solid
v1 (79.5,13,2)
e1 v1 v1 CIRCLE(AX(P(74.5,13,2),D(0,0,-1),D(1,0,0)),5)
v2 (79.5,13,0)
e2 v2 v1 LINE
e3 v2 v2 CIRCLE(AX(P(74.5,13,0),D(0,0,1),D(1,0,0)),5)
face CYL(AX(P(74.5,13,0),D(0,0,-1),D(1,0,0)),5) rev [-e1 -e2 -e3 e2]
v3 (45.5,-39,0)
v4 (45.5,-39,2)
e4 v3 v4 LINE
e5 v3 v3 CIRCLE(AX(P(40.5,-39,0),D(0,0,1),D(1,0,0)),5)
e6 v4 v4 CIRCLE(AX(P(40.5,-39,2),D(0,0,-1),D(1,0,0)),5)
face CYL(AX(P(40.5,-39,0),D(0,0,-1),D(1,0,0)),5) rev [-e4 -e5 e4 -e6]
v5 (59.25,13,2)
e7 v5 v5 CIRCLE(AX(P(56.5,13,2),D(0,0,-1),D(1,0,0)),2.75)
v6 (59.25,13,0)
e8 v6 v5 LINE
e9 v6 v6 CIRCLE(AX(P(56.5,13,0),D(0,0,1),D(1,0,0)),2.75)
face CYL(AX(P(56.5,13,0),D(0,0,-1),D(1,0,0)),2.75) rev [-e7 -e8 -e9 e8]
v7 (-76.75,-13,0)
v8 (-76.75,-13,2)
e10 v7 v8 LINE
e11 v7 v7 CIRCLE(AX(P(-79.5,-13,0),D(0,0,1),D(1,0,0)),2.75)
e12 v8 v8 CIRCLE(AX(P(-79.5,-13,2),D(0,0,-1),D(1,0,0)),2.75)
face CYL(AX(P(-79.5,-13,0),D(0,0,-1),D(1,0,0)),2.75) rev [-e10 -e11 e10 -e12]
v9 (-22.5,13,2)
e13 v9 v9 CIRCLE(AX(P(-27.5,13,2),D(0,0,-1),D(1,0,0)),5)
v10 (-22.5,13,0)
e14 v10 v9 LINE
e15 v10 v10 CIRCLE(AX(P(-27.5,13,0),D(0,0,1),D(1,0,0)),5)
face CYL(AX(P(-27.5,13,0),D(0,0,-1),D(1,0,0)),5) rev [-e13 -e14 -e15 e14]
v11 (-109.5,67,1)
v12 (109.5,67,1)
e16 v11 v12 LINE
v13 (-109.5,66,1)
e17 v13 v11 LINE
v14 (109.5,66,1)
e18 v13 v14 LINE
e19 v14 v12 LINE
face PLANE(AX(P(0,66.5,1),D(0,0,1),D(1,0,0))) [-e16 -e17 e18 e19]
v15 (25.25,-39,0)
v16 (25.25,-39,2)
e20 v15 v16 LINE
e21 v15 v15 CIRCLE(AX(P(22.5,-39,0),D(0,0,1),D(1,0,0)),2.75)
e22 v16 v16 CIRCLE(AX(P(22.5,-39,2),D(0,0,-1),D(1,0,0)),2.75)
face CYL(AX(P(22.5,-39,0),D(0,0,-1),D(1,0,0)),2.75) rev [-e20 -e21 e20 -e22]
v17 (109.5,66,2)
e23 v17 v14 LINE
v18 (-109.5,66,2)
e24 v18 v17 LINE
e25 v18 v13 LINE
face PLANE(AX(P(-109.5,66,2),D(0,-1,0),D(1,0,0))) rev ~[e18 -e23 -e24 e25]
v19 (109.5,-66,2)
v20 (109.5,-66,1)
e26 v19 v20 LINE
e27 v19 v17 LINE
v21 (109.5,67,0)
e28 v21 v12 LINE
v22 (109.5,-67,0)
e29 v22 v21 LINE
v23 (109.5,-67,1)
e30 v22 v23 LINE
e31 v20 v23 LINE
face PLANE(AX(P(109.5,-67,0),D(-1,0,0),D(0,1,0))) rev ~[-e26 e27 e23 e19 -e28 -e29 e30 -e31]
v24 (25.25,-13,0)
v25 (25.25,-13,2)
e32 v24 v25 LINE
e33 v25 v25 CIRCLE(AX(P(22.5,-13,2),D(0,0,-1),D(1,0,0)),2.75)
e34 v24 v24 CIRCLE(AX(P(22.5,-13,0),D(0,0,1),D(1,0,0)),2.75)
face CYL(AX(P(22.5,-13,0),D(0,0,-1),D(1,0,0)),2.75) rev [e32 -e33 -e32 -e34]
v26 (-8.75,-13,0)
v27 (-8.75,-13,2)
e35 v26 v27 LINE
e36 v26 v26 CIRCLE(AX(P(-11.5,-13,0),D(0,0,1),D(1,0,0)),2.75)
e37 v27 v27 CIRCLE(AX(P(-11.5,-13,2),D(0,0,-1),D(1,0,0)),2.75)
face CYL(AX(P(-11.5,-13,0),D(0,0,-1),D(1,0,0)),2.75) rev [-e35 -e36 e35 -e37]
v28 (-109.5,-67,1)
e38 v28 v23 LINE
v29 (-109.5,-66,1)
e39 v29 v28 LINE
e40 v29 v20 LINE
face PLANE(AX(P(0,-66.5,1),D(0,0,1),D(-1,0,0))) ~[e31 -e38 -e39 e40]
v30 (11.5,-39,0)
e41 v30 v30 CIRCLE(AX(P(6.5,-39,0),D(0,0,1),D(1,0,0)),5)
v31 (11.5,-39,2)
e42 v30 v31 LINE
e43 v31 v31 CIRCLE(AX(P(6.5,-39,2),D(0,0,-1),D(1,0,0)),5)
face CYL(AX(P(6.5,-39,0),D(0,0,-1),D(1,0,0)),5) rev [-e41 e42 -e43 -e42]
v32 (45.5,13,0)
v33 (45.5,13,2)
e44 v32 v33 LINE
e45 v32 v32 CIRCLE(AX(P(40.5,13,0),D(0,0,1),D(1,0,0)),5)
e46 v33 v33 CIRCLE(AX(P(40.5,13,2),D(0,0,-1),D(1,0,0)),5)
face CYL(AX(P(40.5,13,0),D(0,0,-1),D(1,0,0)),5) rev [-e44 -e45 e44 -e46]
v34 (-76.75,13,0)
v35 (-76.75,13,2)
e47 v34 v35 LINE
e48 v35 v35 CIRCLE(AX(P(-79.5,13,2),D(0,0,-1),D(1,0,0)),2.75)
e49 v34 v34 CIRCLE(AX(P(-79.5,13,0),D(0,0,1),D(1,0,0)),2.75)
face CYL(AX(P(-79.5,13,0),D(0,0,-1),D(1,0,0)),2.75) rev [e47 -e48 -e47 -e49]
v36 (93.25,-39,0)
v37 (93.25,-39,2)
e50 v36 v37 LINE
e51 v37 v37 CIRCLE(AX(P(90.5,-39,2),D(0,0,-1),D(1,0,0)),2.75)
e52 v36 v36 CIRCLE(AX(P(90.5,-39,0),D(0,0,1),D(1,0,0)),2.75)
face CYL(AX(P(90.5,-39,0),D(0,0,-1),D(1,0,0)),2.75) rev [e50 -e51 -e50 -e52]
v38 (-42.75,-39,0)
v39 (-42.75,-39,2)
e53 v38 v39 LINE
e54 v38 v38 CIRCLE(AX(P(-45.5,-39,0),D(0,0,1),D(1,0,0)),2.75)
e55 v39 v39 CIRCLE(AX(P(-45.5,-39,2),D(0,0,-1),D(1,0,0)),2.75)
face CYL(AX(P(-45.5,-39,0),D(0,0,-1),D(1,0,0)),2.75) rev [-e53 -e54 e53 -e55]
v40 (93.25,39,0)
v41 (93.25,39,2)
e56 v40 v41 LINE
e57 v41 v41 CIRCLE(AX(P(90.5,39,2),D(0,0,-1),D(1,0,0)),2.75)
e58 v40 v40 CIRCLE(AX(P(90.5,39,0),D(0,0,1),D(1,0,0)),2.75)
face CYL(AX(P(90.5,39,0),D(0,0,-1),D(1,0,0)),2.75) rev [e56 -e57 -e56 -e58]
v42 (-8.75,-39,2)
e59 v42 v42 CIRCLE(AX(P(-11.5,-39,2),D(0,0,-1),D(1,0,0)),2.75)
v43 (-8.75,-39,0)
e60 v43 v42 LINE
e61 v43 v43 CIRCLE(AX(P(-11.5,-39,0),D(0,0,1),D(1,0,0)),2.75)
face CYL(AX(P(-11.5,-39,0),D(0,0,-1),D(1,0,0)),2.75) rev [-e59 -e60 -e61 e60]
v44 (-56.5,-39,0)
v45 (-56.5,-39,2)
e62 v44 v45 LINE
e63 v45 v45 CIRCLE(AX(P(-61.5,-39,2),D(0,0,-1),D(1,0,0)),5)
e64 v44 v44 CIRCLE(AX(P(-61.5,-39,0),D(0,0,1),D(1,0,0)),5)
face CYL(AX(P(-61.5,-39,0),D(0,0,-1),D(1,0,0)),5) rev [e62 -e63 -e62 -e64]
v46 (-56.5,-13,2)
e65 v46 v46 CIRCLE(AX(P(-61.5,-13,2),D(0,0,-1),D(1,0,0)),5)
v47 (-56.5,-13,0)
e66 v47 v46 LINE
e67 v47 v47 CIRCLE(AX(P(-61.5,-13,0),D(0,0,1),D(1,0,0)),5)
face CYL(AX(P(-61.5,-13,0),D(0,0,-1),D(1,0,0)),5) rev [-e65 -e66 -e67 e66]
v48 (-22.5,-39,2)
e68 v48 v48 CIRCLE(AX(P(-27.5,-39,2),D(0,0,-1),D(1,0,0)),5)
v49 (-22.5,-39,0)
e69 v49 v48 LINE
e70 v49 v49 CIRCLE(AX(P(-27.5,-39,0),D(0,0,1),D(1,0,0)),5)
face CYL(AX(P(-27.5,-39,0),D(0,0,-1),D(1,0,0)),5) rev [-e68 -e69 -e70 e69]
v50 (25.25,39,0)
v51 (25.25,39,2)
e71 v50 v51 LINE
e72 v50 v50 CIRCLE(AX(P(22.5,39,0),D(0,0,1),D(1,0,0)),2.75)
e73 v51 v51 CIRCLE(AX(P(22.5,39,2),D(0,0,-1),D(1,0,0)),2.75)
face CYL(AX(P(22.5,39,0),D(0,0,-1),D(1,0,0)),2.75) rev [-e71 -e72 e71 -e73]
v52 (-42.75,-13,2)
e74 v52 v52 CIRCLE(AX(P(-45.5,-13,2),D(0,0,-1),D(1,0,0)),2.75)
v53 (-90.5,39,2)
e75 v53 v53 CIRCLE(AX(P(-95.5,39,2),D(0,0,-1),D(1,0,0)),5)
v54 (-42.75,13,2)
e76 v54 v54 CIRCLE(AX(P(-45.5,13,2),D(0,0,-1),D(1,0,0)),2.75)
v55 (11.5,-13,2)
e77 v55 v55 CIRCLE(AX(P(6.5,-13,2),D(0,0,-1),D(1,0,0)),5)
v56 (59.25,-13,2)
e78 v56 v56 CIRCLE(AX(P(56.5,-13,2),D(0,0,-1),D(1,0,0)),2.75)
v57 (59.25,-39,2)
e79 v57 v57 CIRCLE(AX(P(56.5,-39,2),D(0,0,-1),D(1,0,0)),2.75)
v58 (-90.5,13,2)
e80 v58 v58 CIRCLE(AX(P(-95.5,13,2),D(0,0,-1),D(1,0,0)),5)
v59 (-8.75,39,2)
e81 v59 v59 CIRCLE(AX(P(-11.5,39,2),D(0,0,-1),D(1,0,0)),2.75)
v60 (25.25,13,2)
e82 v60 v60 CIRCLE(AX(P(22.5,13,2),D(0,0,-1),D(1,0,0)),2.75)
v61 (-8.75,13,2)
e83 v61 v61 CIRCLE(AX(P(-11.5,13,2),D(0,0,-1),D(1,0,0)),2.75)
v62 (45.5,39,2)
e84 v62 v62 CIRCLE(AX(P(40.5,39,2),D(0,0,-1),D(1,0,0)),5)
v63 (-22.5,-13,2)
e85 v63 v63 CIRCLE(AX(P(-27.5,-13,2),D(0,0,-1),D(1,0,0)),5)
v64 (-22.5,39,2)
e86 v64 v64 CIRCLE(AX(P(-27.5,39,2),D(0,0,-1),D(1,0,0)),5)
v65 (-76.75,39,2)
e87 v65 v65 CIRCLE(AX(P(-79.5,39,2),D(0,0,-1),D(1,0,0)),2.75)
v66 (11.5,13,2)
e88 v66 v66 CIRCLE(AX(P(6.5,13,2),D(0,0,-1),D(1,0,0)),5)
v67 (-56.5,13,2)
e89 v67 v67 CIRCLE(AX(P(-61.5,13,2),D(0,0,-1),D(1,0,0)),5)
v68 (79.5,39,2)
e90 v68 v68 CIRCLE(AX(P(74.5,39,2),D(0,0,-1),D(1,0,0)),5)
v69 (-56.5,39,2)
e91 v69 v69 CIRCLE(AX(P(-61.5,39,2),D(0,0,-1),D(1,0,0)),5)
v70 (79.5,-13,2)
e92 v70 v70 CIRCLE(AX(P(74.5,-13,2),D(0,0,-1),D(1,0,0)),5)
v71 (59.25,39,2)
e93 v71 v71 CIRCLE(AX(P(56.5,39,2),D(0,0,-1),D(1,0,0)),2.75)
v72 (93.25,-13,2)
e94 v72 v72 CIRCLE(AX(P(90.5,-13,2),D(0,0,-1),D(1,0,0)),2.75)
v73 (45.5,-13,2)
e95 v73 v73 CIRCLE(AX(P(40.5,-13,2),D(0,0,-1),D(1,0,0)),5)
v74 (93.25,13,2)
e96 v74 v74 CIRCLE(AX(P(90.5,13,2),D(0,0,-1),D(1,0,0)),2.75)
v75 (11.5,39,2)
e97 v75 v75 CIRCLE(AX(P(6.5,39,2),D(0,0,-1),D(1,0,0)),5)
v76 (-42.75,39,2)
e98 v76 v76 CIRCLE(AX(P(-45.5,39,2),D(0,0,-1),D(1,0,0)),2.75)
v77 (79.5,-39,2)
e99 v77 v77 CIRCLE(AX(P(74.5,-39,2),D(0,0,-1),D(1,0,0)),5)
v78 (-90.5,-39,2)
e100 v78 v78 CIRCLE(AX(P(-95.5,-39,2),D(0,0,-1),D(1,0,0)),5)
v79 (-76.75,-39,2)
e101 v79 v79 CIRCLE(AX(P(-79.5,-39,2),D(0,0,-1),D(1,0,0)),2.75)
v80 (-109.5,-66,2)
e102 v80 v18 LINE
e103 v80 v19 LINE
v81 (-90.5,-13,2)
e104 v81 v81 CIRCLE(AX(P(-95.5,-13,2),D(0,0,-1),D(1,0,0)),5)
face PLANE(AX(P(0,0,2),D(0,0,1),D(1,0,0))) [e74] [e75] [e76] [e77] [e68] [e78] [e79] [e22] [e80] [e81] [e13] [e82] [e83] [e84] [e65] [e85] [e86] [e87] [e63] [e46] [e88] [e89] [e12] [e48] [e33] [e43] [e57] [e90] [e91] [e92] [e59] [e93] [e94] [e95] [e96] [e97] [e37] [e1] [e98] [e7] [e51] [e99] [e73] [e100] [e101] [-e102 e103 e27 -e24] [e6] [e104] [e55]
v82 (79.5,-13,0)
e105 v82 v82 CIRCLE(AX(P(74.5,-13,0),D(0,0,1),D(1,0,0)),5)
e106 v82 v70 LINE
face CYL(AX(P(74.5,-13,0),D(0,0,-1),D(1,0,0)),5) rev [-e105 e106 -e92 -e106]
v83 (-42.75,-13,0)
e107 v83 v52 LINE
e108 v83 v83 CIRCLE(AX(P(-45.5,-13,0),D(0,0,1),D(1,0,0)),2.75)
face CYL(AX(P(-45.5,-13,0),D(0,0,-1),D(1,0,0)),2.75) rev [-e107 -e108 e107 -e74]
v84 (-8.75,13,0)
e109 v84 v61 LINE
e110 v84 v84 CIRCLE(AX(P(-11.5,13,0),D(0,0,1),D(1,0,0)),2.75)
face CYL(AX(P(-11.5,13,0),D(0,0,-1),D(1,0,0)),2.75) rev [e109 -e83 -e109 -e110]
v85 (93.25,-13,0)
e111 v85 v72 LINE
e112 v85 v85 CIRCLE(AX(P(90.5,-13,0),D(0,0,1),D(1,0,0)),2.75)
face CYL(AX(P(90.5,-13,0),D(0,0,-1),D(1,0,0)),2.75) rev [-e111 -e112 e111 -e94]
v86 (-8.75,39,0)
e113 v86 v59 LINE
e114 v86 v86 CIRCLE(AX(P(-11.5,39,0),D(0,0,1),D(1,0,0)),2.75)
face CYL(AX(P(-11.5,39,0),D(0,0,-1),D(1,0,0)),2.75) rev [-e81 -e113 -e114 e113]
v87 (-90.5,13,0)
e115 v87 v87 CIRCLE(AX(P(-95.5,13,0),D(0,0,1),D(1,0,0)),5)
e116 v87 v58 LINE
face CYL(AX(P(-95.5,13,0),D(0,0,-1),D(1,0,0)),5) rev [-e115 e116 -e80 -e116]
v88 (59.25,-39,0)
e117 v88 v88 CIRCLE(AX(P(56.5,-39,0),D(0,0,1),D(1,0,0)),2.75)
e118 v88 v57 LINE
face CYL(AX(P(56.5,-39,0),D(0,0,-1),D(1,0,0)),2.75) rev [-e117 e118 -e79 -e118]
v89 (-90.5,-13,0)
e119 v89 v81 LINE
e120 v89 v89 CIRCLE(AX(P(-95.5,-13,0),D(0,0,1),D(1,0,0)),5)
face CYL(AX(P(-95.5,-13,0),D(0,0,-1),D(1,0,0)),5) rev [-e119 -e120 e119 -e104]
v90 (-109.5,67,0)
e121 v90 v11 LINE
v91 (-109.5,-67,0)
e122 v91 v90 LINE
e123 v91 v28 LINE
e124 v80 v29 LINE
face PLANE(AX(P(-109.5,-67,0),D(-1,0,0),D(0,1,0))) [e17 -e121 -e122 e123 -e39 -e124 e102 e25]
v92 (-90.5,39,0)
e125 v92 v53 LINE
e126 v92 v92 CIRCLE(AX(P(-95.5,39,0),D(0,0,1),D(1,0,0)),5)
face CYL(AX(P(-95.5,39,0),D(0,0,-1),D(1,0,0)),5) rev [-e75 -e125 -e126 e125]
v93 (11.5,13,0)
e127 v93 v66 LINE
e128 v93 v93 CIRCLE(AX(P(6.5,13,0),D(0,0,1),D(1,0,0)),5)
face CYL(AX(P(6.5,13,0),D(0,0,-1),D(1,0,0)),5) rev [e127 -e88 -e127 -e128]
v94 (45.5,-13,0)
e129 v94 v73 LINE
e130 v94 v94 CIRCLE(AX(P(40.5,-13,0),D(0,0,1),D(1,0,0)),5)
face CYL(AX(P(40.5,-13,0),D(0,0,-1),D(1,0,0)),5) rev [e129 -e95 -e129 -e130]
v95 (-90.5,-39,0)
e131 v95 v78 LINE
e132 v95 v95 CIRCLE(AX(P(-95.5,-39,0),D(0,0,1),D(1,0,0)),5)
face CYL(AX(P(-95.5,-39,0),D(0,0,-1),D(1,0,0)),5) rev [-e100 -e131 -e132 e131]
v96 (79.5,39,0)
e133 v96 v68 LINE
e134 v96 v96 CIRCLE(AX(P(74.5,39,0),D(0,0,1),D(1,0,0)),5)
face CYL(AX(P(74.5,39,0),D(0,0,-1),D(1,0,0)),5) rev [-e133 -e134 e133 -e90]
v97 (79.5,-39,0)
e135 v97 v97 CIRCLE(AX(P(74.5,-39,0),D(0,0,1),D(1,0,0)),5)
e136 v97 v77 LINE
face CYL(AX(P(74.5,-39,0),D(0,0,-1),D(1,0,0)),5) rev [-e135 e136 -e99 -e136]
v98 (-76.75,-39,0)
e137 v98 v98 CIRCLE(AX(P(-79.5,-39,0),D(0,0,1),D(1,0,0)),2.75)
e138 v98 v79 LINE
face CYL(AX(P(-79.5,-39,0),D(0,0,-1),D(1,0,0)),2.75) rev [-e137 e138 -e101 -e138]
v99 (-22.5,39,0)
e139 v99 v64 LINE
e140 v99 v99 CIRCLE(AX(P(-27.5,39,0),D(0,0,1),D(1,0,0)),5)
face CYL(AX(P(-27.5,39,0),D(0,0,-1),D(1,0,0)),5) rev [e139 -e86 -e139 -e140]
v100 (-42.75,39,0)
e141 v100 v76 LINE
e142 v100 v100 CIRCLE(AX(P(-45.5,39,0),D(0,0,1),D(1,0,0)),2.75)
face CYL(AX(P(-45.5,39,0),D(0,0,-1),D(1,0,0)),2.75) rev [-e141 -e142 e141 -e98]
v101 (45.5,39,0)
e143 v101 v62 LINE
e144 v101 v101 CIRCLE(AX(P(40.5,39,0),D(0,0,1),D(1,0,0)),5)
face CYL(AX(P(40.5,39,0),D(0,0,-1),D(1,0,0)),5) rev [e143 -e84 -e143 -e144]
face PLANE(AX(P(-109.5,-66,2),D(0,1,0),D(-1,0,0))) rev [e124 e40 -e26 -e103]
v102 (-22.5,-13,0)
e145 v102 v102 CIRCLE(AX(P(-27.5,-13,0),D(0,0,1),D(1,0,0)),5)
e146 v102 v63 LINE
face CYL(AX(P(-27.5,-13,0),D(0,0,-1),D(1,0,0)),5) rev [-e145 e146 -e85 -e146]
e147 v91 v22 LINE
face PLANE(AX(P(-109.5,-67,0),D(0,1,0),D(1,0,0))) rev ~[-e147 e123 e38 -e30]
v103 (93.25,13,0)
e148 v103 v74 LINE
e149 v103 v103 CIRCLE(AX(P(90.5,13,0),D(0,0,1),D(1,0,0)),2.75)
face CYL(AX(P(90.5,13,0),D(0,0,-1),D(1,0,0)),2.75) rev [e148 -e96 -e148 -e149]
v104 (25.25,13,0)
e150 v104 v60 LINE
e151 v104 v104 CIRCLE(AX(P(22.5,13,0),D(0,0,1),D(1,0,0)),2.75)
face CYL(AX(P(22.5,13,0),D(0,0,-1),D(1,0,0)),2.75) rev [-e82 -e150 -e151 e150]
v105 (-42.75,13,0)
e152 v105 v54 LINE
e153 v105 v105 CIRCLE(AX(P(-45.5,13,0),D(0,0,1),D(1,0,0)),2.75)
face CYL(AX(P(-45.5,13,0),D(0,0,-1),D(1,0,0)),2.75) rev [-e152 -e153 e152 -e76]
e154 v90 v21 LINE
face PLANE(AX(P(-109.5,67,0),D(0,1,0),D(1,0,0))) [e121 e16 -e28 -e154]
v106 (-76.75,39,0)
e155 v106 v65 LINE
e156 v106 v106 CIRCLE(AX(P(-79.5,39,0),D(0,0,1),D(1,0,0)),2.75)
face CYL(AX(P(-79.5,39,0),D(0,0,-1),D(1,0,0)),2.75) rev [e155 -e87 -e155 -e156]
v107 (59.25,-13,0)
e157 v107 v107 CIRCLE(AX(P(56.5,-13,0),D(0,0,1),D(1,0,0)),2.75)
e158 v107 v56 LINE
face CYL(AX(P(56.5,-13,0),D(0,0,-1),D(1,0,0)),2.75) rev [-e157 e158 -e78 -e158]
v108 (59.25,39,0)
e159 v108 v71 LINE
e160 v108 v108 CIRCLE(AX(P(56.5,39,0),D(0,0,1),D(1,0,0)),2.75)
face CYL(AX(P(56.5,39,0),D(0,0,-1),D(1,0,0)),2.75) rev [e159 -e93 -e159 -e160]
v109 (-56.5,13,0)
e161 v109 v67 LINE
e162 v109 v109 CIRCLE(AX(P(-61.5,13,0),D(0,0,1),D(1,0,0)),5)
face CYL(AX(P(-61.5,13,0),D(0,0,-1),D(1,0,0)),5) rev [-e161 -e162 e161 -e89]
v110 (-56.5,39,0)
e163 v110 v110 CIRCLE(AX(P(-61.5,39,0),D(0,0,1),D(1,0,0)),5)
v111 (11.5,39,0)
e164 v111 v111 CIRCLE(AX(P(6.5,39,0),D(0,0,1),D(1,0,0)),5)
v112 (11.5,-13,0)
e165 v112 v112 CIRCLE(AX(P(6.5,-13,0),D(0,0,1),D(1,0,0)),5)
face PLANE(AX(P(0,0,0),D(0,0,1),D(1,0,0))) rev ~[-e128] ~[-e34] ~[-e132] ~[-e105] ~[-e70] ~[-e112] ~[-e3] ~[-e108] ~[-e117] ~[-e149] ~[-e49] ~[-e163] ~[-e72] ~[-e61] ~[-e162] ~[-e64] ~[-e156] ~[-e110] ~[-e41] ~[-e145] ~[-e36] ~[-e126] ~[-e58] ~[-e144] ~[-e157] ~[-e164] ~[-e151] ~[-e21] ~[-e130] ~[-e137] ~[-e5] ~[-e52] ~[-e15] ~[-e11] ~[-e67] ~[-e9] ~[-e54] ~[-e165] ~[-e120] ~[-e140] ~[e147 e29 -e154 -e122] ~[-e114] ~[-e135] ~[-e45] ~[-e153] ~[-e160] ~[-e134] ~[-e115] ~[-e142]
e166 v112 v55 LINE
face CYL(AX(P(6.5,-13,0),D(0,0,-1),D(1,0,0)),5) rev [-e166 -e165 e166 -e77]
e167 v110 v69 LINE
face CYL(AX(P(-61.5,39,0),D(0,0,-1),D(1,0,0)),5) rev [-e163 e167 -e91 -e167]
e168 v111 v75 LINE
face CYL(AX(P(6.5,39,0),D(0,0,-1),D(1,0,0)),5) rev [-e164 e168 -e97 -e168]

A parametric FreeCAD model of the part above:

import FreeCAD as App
import Part
import Sketcher

doc = App.newDocument("Part")
body = doc.addObject("PartDesign::Body", "Body")

# Sketch on XY plane
sketch1 = body.newObject("Sketcher::SketchObject", "Sketch")
sketch1.AttachmentSupport = (doc.getObject("XY_Plane"), [""])
sketch1.MapMode = "FlatFace"
sketch1.addGeometry([
    Part.LineSegment(App.Vector(-109.5, 67, 0), App.Vector(-109.5, -67, 0)),
    Part.LineSegment(App.Vector(-109.5, -67, 0), App.Vector(109.5, -67, 0)),
    Part.LineSegment(App.Vector(109.5, -67, 0), App.Vector(109.5, 67, 0)),
    Part.LineSegment(App.Vector(109.5, 67, 0), App.Vector(-109.5, 67, 0)),
], False)
sketch1.addConstraint([
    Sketcher.Constraint("Coincident", 0, 2, 1, 1),
    Sketcher.Constraint("Coincident", 1, 2, 2, 1),
    Sketcher.Constraint("Coincident", 2, 2, 3, 1),
    Sketcher.Constraint("Coincident", 3, 2, 0, 1),
    Sketcher.Constraint("Vertical", 0),
    Sketcher.Constraint("Horizontal", 1),
    Sketcher.Constraint("Vertical", 2),
    Sketcher.Constraint("Horizontal", 3),
    Sketcher.Constraint("Symmetric", 0, 2, 2, 2, -1, 1),
    Sketcher.Constraint("DistanceX", 1, 1, 1, 2, 219.0),
    Sketcher.Constraint("DistanceY", 0, 2, 0, 1, 134.0),
])
pad1 = body.newObject("PartDesign::Pad", "Pad")
pad1.Profile = sketch1
pad1.Length = 2

# Sketch on XY plane
sketch2 = body.newObject("Sketcher::SketchObject", "Sketch001")
sketch2.AttachmentSupport = (doc.getObject("XY_Plane"), [""])
sketch2.MapMode = "FlatFace"
sketch2.addGeometry([
    Part.Circle(App.Vector(-95.5, 39, 0), App.Vector(0, 0, 1), 5),  # 0
    Part.Circle(App.Vector(-95.5, 13, 0), App.Vector(0, 0, 1), 5),  # 1
    Part.Circle(App.Vector(-95.5, -13, 0), App.Vector(0, 0, 1), 5),  # 2
    Part.Circle(App.Vector(-95.5, -39, 0), App.Vector(0, 0, 1), 5),  # 3
    Part.Circle(App.Vector(-79.5, 39, 0), App.Vector(0, 0, 1), 2.75),  # 4
    Part.Circle(App.Vector(-79.5, 13, 0), App.Vector(0, 0, 1), 2.75),  # 5
    Part.Circle(App.Vector(-79.5, -13, 0), App.Vector(0, 0, 1), 2.75),  # 6
    Part.Circle(App.Vector(-79.5, -39, 0), App.Vector(0, 0, 1), 2.75),  # 7
], False)
sketch2.addConstraint([
    Sketcher.Constraint("Equal", 0, 1),
    Sketcher.Constraint("Equal", 1, 2),
    Sketcher.Constraint("Equal", 2, 3),
    Sketcher.Constraint("Equal", 4, 5),
    Sketcher.Constraint("Equal", 5, 6),
    Sketcher.Constraint("Equal", 6, 7),
    Sketcher.Constraint("Symmetric", 1, 3, 2, 3, -1),
    Sketcher.Constraint("Symmetric", 0, 3, 3, 3, -1),
    Sketcher.Constraint("Symmetric", 5, 3, 6, 3, -1),
    Sketcher.Constraint("Symmetric", 4, 3, 7, 3, -1),
    Sketcher.Constraint("Horizontal", 0, 3, 4, 3),
    Sketcher.Constraint("Horizontal", 1, 3, 5, 3),
    Sketcher.Constraint("Vertical", 0, 3, 1, 3),
    Sketcher.Constraint("Vertical", 4, 3, 5, 3),
    Sketcher.Constraint("Diameter", 0, 10.0),
    Sketcher.Constraint("Diameter", 4, 5.5),
    Sketcher.Constraint("DistanceY", -1, 1, 0, 3, 39.0),
    Sketcher.Constraint("DistanceY", -1, 1, 1, 3, 13.0),
    Sketcher.Constraint("DistanceX", 0, 3, 4, 3, 16.0),
    Sketcher.Constraint("DistanceX", 0, 3, -1, 1, 95.5),
])
pocket1 = body.newObject("PartDesign::Pocket", "Pocket")
pocket1.Profile = sketch2
pocket1.Type = "ThroughAll"
pocket1.Reversed = True
doc.recompute()

linearpattern = body.newObject("PartDesign::LinearPattern", "LinearPattern")
linearpattern.Originals = [pocket1]
linearpattern.Direction = (doc.getObject("X_Axis"), [""])
linearpattern.Mode = "offset"
linearpattern.Offset = 34
linearpattern.Occurrences = 6
body.Tip = linearpattern

# Sketch on XY plane
sketch3 = body.newObject("Sketcher::SketchObject", "Sketch002")
sketch3.AttachmentSupport = (doc.getObject("XY_Plane"), [""])
sketch3.MapMode = "FlatFace"
sketch3.AttachmentOffset = App.Placement(App.Vector(0, 0, 2), App.Rotation())
sketch3.addGeometry([
    Part.LineSegment(App.Vector(-109.5, 67, 0), App.Vector(-109.5, 66, 0)),
    Part.LineSegment(App.Vector(-109.5, 66, 0), App.Vector(109.5, 66, 0)),
    Part.LineSegment(App.Vector(109.5, 66, 0), App.Vector(109.5, 67, 0)),
    Part.LineSegment(App.Vector(109.5, 67, 0), App.Vector(-109.5, 67, 0)),
], False)
sketch3.addConstraint([
    Sketcher.Constraint("Coincident", 0, 2, 1, 1),
    Sketcher.Constraint("Coincident", 1, 2, 2, 1),
    Sketcher.Constraint("Coincident", 2, 2, 3, 1),
    Sketcher.Constraint("Coincident", 3, 2, 0, 1),
    Sketcher.Constraint("Vertical", 0),
    Sketcher.Constraint("Horizontal", 1),
    Sketcher.Constraint("Vertical", 2),
    Sketcher.Constraint("Horizontal", 3),
    Sketcher.Constraint("DistanceX", 1, 1, 1, 2, 219.0),
    Sketcher.Constraint("DistanceY", 0, 2, 0, 1, 1.0),
    Sketcher.Constraint("DistanceY", -1, 1, 0, 2, 66.0),
    Sketcher.Constraint("DistanceX", 0, 2, -1, 1, 109.5),
])
pocket2 = body.newObject("PartDesign::Pocket", "Pocket001")
pocket2.Profile = sketch3
pocket2.Length = 1
doc.recompute()

mirrored = body.newObject("PartDesign::Mirrored", "Mirrored")
mirrored.Originals = [pocket2]
mirrored.MirrorPlane = (doc.getObject("XZ_Plane"), [""])
body.Tip = mirrored

doc.recompute()
